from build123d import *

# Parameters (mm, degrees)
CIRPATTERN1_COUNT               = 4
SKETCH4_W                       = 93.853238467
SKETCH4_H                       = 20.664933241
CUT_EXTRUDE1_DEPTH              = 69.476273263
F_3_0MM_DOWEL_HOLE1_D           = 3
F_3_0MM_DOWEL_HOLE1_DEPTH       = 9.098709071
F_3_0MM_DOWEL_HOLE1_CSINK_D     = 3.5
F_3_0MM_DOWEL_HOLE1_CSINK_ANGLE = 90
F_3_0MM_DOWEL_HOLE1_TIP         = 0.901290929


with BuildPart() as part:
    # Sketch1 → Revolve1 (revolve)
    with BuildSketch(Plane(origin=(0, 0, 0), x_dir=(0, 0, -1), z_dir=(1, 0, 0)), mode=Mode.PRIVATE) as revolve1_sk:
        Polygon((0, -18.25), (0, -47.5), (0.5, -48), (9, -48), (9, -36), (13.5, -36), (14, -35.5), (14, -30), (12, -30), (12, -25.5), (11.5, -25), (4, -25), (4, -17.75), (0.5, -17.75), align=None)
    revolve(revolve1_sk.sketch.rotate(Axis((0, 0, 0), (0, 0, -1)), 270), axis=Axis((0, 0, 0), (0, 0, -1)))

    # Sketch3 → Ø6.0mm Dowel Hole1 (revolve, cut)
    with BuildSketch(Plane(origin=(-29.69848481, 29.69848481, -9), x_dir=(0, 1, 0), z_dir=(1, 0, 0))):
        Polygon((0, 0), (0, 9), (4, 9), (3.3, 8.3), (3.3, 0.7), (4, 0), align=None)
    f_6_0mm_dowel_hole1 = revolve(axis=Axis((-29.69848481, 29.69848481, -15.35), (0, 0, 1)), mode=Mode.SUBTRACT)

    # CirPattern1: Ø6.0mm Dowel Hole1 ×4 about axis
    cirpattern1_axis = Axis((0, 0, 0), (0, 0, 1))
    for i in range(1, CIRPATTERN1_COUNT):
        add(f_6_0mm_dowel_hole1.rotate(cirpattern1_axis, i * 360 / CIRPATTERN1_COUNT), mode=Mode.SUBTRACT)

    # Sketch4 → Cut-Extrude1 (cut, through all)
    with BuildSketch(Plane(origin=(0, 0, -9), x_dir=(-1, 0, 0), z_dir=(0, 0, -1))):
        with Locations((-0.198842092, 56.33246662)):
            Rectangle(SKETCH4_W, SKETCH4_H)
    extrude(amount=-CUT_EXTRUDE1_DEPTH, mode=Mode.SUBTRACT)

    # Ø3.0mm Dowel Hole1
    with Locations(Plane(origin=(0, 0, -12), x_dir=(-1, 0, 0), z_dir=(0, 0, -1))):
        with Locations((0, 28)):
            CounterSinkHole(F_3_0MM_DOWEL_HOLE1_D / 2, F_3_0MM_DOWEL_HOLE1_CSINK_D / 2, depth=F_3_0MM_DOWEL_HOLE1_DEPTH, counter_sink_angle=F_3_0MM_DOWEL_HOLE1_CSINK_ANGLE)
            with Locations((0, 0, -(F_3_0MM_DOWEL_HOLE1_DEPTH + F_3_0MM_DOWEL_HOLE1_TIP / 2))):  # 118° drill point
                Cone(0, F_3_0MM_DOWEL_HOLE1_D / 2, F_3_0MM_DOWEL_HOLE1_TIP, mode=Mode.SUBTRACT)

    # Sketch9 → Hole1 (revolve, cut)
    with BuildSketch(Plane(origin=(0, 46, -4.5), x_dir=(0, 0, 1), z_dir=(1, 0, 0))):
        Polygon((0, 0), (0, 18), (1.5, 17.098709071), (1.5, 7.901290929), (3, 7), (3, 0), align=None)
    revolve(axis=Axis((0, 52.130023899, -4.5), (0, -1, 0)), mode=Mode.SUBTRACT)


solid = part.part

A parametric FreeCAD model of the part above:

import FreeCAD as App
import Part
import Sketcher
Q = App.Units.Quantity

doc = App.newDocument("Part")
params = doc.addObject("Spreadsheet::Sheet", "Params")
for row, (alias, value) in enumerate([
    ("sketch1_width", "12 mm"),
    ("sketch1_height", "2 mm"),
    ("sketch1_width2", "5.5 mm"),
    ("sketch1_width3", "4.5 mm"),
    ("sketch1_height2", "8.5 mm"),
    ("revolution_angle", "360 deg"),
    ("sketch2_width", "4 mm"),
    ("sketch2_height", "9 mm"),
    ("sketch2_height2", "7.6 mm"),
    ("groove_angle", "360 deg"),
    ("sketch4_diameter", "3 mm"),
    ("hole_diameter", "3 mm"),
    ("hole_depth", "9.098709 mm"),
    ("hole_csink_diameter", "3.5 mm"),
    ("sketch5_width", "18 mm"),
    ("sketch5_width2", "7 mm"),
    ("sketch5_height", "3 mm"),
    ("groove2_angle", "360 deg"),
], start=1):
    params.set(f"A{row}", alias)
    params.set(f"B{row}", "=" + value)
    params.setAlias(f"B{row}", alias)

body = doc.addObject("PartDesign::Body", "Body")

sketch1 = body.newObject("Sketcher::SketchObject", "Sketch")
sketch1.AttachmentSupport = (doc.getObject("YZ_Plane"), [""])
sketch1.MapMode = "FlatFace"
sketch1.addGeometry([
    Part.LineSegment(App.Vector(-18.2, 0, 0), App.Vector(-47.5, 0, 0)),
    Part.LineSegment(App.Vector(-47.5, 0, 0), App.Vector(-48, -0.5, 0)),
    Part.LineSegment(App.Vector(-48, -0.5, 0), App.Vector(-48, -9, 0)),
    Part.LineSegment(App.Vector(-48, -9, 0), App.Vector(-36, -9, 0)),
    Part.LineSegment(App.Vector(-36, -9, 0), App.Vector(-36, -13.5, 0)),
    Part.LineSegment(App.Vector(-36, -13.5, 0), App.Vector(-35.5, -14, 0)),
    Part.LineSegment(App.Vector(-35.5, -14, 0), App.Vector(-30, -14, 0)),
    Part.LineSegment(App.Vector(-30, -14, 0), App.Vector(-30, -12, 0)),
    Part.LineSegment(App.Vector(-30, -12, 0), App.Vector(-25.5, -12, 0)),
    Part.LineSegment(App.Vector(-25.5, -12, 0), App.Vector(-25, -11.5, 0)),
    Part.LineSegment(App.Vector(-25, -11.5, 0), App.Vector(-25, -4, 0)),
    Part.LineSegment(App.Vector(-25, -4, 0), App.Vector(-17.8, -4, 0)),
    Part.LineSegment(App.Vector(-17.8, -4, 0), App.Vector(-17.8, -0.5, 0)),
    Part.LineSegment(App.Vector(-17.8, -0.5, 0), App.Vector(-18.2, 0, 0)),
], False)
sketch1.addConstraint([
    Sketcher.Constraint("Coincident", 0, 2, 1, 1),
    Sketcher.Constraint("Coincident", 1, 2, 2, 1),
    Sketcher.Constraint("Coincident", 2, 2, 3, 1),
    Sketcher.Constraint("Coincident", 3, 2, 4, 1),
    Sketcher.Constraint("Coincident", 4, 2, 5, 1),
    Sketcher.Constraint("Coincident", 5, 2, 6, 1),
    Sketcher.Constraint("Coincident", 6, 2, 7, 1),
    Sketcher.Constraint("Coincident", 7, 2, 8, 1),
    Sketcher.Constraint("Coincident", 8, 2, 9, 1),
    Sketcher.Constraint("Coincident", 9, 2, 10, 1),
    Sketcher.Constraint("Coincident", 10, 2, 11, 1),
    Sketcher.Constraint("Coincident", 11, 2, 12, 1),
    Sketcher.Constraint("Coincident", 12, 2, 13, 1),
    Sketcher.Constraint("Coincident", 13, 2, 0, 1),
    Sketcher.Constraint("Horizontal", 0),
    Sketcher.Constraint("Vertical", 2),
    Sketcher.Constraint("Horizontal", 3),
    Sketcher.Constraint("Vertical", 4),
    Sketcher.Constraint("Horizontal", 6),
    Sketcher.Constraint("Vertical", 7),
    Sketcher.Constraint("Horizontal", 8),
    Sketcher.Constraint("Vertical", 10),
    Sketcher.Constraint("Horizontal", 11),
    Sketcher.Constraint("Vertical", 12),
    Sketcher.Constraint("PointOnObject", 0, 2, -1),
    Sketcher.Constraint("Perpendicular", 1, 5),
    Sketcher.Constraint("Perpendicular", 5, 9),
    Sketcher.Constraint("Perpendicular", 9, 13),
    Sketcher.Constraint("Horizontal", 1, 2, 12, 2),
    Sketcher.Constraint("Equal", 8, 4),
    Sketcher.Constraint("Equal", 1, 5),
    Sketcher.Constraint("Equal", 5, 9),
    Sketcher.Constraint("Equal", 9, 13),
    Sketcher.Constraint("DistanceX", 3, 1, 3, 2, 12.0),
    Sketcher.Constraint("DistanceY", 7, 1, 7, 2, 2.0),
    Sketcher.Constraint("DistanceX", 6, 1, 6, 2, 5.5),
    Sketcher.Constraint("DistanceX", 8, 1, 8, 2, 4.5),
    Sketcher.Constraint("DistanceY", 2, 2, 2, 1, 8.5),
    Sketcher.Constraint("DistanceY", 10, 1, 10, 2, 7.5),
    Sketcher.Constraint("DistanceX", 1, 2, -1, 1, 48.0),
    Sketcher.Constraint("DistanceY", 2, 2, -1, 1, 9.0),
    Sketcher.Constraint("DistanceX", 0, 2, 0, 1, 29.25),
])
sketch1.setExpression("Constraints[33]", "Params.sketch1_width")
sketch1.setExpression("Constraints[34]", "Params.sketch1_height")
sketch1.setExpression("Constraints[35]", "Params.sketch1_width2")
sketch1.setExpression("Constraints[36]", "Params.sketch1_width3")
sketch1.setExpression("Constraints[37]", "Params.sketch1_height2")
revolution = body.newObject("PartDesign::Revolution", "Revolution")
revolution.Profile = sketch1
revolution.ReferenceAxis = (sketch1, ["V_Axis"])
revolution.setExpression("Angle", "Params.revolution_angle")

sketch2 = body.newObject("Sketcher::SketchObject", "Sketch001")
sketch2.AttachmentSupport = (doc.getObject("YZ_Plane"), [""])
sketch2.MapMode = "FlatFace"
sketch2.AttachmentOffset = App.Placement(App.Vector(0, 0, -29.698485), App.Rotation())
sketch2.addGeometry([
    Part.LineSegment(App.Vector(29.7, 0, 0), App.Vector(29.7, -9, 0)),
    Part.LineSegment(App.Vector(29.7, -9, 0), App.Vector(33.7, -9, 0)),
    Part.LineSegment(App.Vector(33.7, -9, 0), App.Vector(33, -8.3, 0)),
    Part.LineSegment(App.Vector(33, -8.3, 0), App.Vector(33, -0.7, 0)),
    Part.LineSegment(App.Vector(33, -0.7, 0), App.Vector(33.7, 0, 0)),
    Part.LineSegment(App.Vector(33.7, 0, 0), App.Vector(29.7, 0, 0)),
], False)
sketch2.addGeometry(Part.LineSegment(App.Vector(29.7, -9, 0), App.Vector(29.7, 0, 0)), True)
sketch2.addConstraint([
    Sketcher.Constraint("Coincident", 0, 2, 1, 1),
    Sketcher.Constraint("Coincident", 1, 2, 2, 1),
    Sketcher.Constraint("Coincident", 2, 2, 3, 1),
    Sketcher.Constraint("Coincident", 3, 2, 4, 1),
    Sketcher.Constraint("Coincident", 4, 2, 5, 1),
    Sketcher.Constraint("Coincident", 5, 2, 0, 1),
    Sketcher.Constraint("Vertical", 0),
    Sketcher.Constraint("Horizontal", 1),
    Sketcher.Constraint("Vertical", 3),
    Sketcher.Constraint("Horizontal", 5),
    Sketcher.Constraint("Vertical", 6),
    Sketcher.Constraint("Coincident", 6, 1, 0, 2),
    Sketcher.Constraint("PointOnObject", 4, 2, -1),
    Sketcher.Constraint("PointOnObject", 6, 2, -1),
    Sketcher.Constraint("Perpendicular", 2, 4),
    Sketcher.Constraint("Vertical", 1, 2, 4, 2),
    Sketcher.Constraint("Equal", 2, 4),
    Sketcher.Constraint("DistanceX", 1, 1, 1, 2, 4.0),
    Sketcher.Constraint("DistanceY", 0, 2, 0, 1, 9.0),
    Sketcher.Constraint("DistanceY", 3, 1, 3, 2, 7.6),
    Sketcher.Constraint("DistanceX", -1, 1, 0, 2, 29.698485),
])
sketch2.setExpression("Constraints[17]", "Params.sketch2_width")
sketch2.setExpression("Constraints[18]", "Params.sketch2_height")
sketch2.setExpression("Constraints[19]", "Params.sketch2_height2")
groove = body.newObject("PartDesign::Groove", "Groove")
groove.Profile = sketch2
groove.ReferenceAxis = (sketch2, ["Axis0"])
groove.setExpression("Angle", "Params.groove_angle")
doc.recompute()

polarpattern = body.newObject("PartDesign::PolarPattern", "PolarPattern")
polarpattern.Originals = [groove]
polarpattern.Axis = (doc.getObject("Z_Axis"), [""])
polarpattern.Angle = 360
polarpattern.Occurrences = 4
body.Tip = polarpattern

sketch3 = body.newObject("Sketcher::SketchObject", "Sketch002")
sketch3.AttachmentSupport = (doc.getObject("XY_Plane"), [""])
sketch3.MapMode = "FlatFace"
sketch3.AttachmentOffset = App.Placement(App.Vector(0, 0, -9), App.Rotation())
sketch3.addGeometry([
    Part.LineSegment(App.Vector(47, 67, 0), App.Vector(47, 46, 0)),
    Part.LineSegment(App.Vector(47, 46, 0), App.Vector(-47, 46, 0)),
    Part.LineSegment(App.Vector(-47, 46, 0), App.Vector(-47, 67, 0)),
    Part.LineSegment(App.Vector(-47, 67, 0), App.Vector(47, 67, 0)),
], False)
sketch3.addConstraint([
    Sketcher.Constraint("Coincident", 0, 2, 1, 1),
    Sketcher.Constraint("Coincident", 1, 2, 2, 1),
    Sketcher.Constraint("Coincident", 2, 2, 3, 1),
    Sketcher.Constraint("Coincident", 3, 2, 0, 1),
    Sketcher.Constraint("Vertical", 0),
    Sketcher.Constraint("Horizontal", 1),
    Sketcher.Constraint("Vertical", 2),
    Sketcher.Constraint("Horizontal", 3),
    Sketcher.Constraint("DistanceY", -1, 1, 0, 2, 46.0),
    Sketcher.Constraint("DistanceX", 1, 2, 1, 1, 93.853238),
    Sketcher.Constraint("DistanceY", 0, 2, 0, 1, 20.664933),
    Sketcher.Constraint("DistanceX", -1, 1, 0, 2, 47.125461),
])
pocket1 = body.newObject("PartDesign::Pocket", "Pocket")
pocket1.Profile = sketch3
pocket1.Type = "ThroughAll"
pocket1.Reversed = True

sketch4 = body.newObject("Sketcher::SketchObject", "Sketch003")
sketch4.AttachmentSupport = (doc.getObject("XY_Plane"), [""])
sketch4.MapMode = "FlatFace"
sketch4.AttachmentOffset = App.Placement(App.Vector(0, 0, -12), App.Rotation())
sketch4.addGeometry(Part.Circle(App.Vector(0, 28, 0), App.Vector(0, 0, 1), 1.5), False)
sketch4.addConstraint([
    Sketcher.Constraint("PointOnObject", 0, 3, -2),
    Sketcher.Constraint("Diameter", 0, 3.0),
    Sketcher.Constraint("DistanceY", -1, 1, 0, 3, 28.0),
])
sketch4.setExpression("Constraints[1]", "Params.sketch4_diameter")
doc.recompute()
hole = body.newObject("PartDesign::Hole", "Hole")
hole.Profile = sketch4
hole.ThreadType = "None"
hole.setExpression("Diameter", "Params.hole_diameter")
hole.DepthType = "Dimension"
hole.setExpression("Depth", "Params.hole_depth")
hole.DrillPoint = "Angled"
hole.DrillPointAngle = 118
hole.HoleCutType = "Countersink"
hole.setExpression("HoleCutDiameter", "Params.hole_csink_diameter")
hole.HoleCutCountersinkAngle = 90
hole.Reversed = True

sketch5 = body.newObject("Sketcher::SketchObject", "Sketch004")
sketch5.AttachmentSupport = (doc.getObject("YZ_Plane"), [""])
sketch5.MapMode = "FlatFace"
sketch5.addGeometry([
    Part.LineSegment(App.Vector(28, -4.5, 0), App.Vector(46, -4.5, 0)),
    Part.LineSegment(App.Vector(46, -4.5, 0), App.Vector(46, -1.5, 0)),
    Part.LineSegment(App.Vector(46, -1.5, 0), App.Vector(39, -1.5, 0)),
    Part.LineSegment(App.Vector(39, -1.5, 0), App.Vector(38.1, -3, 0)),
    Part.LineSegment(App.Vector(38.1, -3, 0), App.Vector(28.9, -3, 0)),
    Part.LineSegment(App.Vector(28.9, -3, 0), App.Vector(28, -4.5, 0)),
], False)
sketch5.addGeometry(Part.LineSegment(App.Vector(46, -4.5, 0), App.Vector(28, -4.5, 0)), True)
sketch5.addConstraint([
    Sketcher.Constraint("Coincident", 0, 2, 1, 1),
    Sketcher.Constraint("Coincident", 1, 2, 2, 1),
    Sketcher.Constraint("Coincident", 2, 2, 3, 1),
    Sketcher.Constraint("Coincident", 3, 2, 4, 1),
    Sketcher.Constraint("Coincident", 4, 2, 5, 1),
    Sketcher.Constraint("Coincident", 5, 2, 0, 1),
    Sketcher.Constraint("Horizontal", 0),
    Sketcher.Constraint("Vertical", 1),
    Sketcher.Constraint("Horizontal", 2),
    Sketcher.Constraint("Horizontal", 4),
    Sketcher.Constraint("Horizontal", 6),
    Sketcher.Constraint("Coincident", 6, 1, 0, 2),
    Sketcher.Constraint("Parallel", 3, 5),
    Sketcher.Constraint("Equal", 0, 6),
    Sketcher.Constraint("Equal", 3, 5),
    Sketcher.Constraint("DistanceX", 0, 1, 0, 2, 18.0),
    Sketcher.Constraint("DistanceX", 2, 2, 2, 1, 7.0),
    Sketcher.Constraint("DistanceY", 1, 1, 1, 2, 3.0),
    Sketcher.Constraint("Angle", 3, Q("-121 deg")),
    Sketcher.Constraint("DistanceX", -1, 1, 0, 2, 46.0),
    Sketcher.Constraint("DistanceY", 3, 2, -1, 1, 3.0),
])
sketch5.setExpression("Constraints[15]", "Params.sketch5_width")
sketch5.setExpression("Constraints[16]", "Params.sketch5_width2")
sketch5.setExpression("Constraints[17]", "Params.sketch5_height")
groove2 = body.newObject("PartDesign::Groove", "Groove001")
groove2.Profile = sketch5
groove2.ReferenceAxis = (sketch5, ["Axis0"])
groove2.setExpression("Angle", "Params.groove2_angle")

doc.recompute()
